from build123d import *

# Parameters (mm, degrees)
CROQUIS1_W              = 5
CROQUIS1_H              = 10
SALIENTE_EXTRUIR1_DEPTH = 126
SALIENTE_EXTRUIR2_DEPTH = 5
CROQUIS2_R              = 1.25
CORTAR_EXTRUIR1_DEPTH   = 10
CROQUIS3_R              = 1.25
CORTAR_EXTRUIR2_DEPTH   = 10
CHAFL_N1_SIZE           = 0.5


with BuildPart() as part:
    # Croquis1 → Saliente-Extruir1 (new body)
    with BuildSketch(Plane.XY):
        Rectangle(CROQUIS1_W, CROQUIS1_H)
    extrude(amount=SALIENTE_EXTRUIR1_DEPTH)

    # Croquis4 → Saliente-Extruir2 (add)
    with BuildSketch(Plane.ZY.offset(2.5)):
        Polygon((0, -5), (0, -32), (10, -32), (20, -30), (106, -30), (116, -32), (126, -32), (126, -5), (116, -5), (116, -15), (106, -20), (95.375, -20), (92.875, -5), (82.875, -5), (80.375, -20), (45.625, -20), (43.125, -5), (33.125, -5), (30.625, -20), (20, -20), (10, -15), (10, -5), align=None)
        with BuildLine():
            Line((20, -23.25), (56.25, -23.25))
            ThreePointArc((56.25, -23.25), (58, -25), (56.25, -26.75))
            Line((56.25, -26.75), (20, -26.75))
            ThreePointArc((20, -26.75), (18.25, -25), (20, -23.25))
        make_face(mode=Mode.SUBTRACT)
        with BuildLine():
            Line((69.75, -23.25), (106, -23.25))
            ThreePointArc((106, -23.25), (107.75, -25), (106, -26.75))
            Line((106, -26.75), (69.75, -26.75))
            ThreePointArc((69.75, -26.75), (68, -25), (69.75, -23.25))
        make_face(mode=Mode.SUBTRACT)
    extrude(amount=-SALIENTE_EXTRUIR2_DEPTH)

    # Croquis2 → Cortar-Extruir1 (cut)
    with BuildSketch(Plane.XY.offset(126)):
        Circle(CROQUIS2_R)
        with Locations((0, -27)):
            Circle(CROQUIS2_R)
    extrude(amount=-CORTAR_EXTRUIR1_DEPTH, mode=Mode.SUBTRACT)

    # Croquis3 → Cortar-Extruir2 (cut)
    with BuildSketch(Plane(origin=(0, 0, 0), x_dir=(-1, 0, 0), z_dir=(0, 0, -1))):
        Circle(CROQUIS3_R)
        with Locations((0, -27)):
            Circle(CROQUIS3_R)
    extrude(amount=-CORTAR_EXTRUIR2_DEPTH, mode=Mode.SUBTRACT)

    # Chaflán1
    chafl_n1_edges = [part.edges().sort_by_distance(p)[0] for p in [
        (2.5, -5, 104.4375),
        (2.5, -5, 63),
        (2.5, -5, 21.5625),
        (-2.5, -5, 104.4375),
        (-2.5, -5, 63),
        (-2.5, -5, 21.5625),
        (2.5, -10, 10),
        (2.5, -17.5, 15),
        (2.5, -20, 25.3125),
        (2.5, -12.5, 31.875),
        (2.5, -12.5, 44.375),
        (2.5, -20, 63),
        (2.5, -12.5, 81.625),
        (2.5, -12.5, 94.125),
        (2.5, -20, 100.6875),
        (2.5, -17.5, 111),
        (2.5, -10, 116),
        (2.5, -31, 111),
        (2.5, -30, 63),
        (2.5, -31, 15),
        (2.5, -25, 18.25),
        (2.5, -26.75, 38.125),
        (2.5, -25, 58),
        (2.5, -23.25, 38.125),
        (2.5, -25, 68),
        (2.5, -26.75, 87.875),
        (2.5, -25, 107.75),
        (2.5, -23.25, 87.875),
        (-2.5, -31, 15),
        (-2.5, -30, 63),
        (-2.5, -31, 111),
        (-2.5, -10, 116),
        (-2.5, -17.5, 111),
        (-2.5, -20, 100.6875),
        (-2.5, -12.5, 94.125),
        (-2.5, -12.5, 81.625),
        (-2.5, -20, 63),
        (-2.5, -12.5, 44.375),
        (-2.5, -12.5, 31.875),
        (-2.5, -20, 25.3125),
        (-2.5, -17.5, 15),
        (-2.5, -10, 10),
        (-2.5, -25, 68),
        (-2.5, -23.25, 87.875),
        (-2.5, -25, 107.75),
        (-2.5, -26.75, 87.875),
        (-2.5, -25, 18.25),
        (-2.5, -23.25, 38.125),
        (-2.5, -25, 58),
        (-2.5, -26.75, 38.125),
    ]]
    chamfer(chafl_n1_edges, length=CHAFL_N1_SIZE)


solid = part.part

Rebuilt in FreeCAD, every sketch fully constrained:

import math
import FreeCAD as App
import Part
import Sketcher
Q = App.Units.Quantity


def edges_at(feature, points):
    """Names of the edges that pass closest to the given points."""
    edges = feature.Shape.Edges
    near = lambda p: min(range(len(edges)), key=lambda i: edges[i].distToShape(Part.Vertex(*p))[0])
    return sorted({f"Edge{near(p) + 1}" for p in points})


def add_polygon(sketch, points):
    """Adds a closed chain of lines whose ends are joined by coincident constraints."""
    first, n = sketch.GeometryCount, len(points)
    for a, b in zip(points, points[1:] + points[:1]):
        sketch.addGeometry(Part.LineSegment(App.Vector(*a, 0), App.Vector(*b, 0)), False)
    for i in range(n):
        sketch.addConstraint(Sketcher.Constraint("Coincident", first + i, 2, first + (i + 1) % n, 1))

doc = App.newDocument("Part")
body = doc.addObject("PartDesign::Body", "Body")

# Sketch on XY plane
sketch1 = doc.addObject("Sketcher::SketchObject", "Sketch")
body.addObject(sketch1)
sketch1.AttachmentSupport = (doc.XY_Plane, [""])
sketch1.MapMode = "FlatFace"
add_polygon(sketch1, [(-2.5, 5), (-2.5, -5), (2.5, -5), (2.5, 5)])  # lines 0-3
sketch1.addConstraint(Sketcher.Constraint("Vertical", 0))
sketch1.addConstraint(Sketcher.Constraint("Horizontal", 1))
sketch1.addConstraint(Sketcher.Constraint("Vertical", 2))
sketch1.addConstraint(Sketcher.Constraint("Horizontal", 3))
sketch1.addConstraint(Sketcher.Constraint("Symmetric", 0, 2, 2, 2, -1, 1))
sketch1.addConstraint(Sketcher.Constraint("DistanceX", 1, 1, 1, 2, Q("5 mm")))
sketch1.addConstraint(Sketcher.Constraint("DistanceY", 0, 2, 0, 1, Q("10 mm")))
pad1 = doc.addObject("PartDesign::Pad", "Pad")
body.addObject(pad1)
pad1.Profile = sketch1
pad1.Length = 126

# Sketch on YZ plane
sketch2 = doc.addObject("Sketcher::SketchObject", "Sketch001")
body.addObject(sketch2)
sketch2.AttachmentSupport = (doc.YZ_Plane, [""])
sketch2.MapMode = "FlatFace"
sketch2.AttachmentOffset = App.Placement(App.Vector(0, 0, -2.5), App.Rotation())
add_polygon(sketch2, [(-5, 0), (-32, 0), (-32, 10), (-30, 20), (-30, 106), (-32, 116), (-32, 126), (-5, 126), (-5, 116), (-15, 116), (-20, 106), (-20, 95.375), (-5, 92.875), (-5, 82.875), (-20, 80.375), (-20, 45.625), (-5, 43.125), (-5, 33.125), (-20, 30.625), (-20, 20), (-15, 10), (-5, 10)])  # lines 0-21
sketch2.addGeometry(Part.ArcOfCircle(Part.Circle(App.Vector(-25, 20, 0), App.Vector(0, 0, 1), 1.75), math.radians(180), math.radians(360)), False)  # 22
sketch2.addGeometry(Part.LineSegment(App.Vector(-23.25, 20, 0), App.Vector(-23.25, 56.25, 0)), False)  # 23
sketch2.addGeometry(Part.ArcOfCircle(Part.Circle(App.Vector(-25, 56.25, 0), App.Vector(0, 0, 1), 1.75), math.radians(0), math.radians(180)), False)  # 24
sketch2.addGeometry(Part.LineSegment(App.Vector(-26.75, 56.25, 0), App.Vector(-26.75, 20, 0)), False)  # 25
sketch2.addGeometry(Part.ArcOfCircle(Part.Circle(App.Vector(-25, 69.75, 0), App.Vector(0, 0, 1), 1.75), math.radians(180), math.radians(360)), False)  # 26
sketch2.addGeometry(Part.LineSegment(App.Vector(-23.25, 69.75, 0), App.Vector(-23.25, 106, 0)), False)  # 27
sketch2.addGeometry(Part.ArcOfCircle(Part.Circle(App.Vector(-25, 106, 0), App.Vector(0, 0, 1), 1.75), math.radians(0), math.radians(180)), False)  # 28
sketch2.addGeometry(Part.LineSegment(App.Vector(-26.75, 106, 0), App.Vector(-26.75, 69.75, 0)), False)  # 29
sketch2.addConstraint(Sketcher.Constraint("Tangent", 22, 2, 23, 1))
sketch2.addConstraint(Sketcher.Constraint("Tangent", 23, 2, 24, 1))
sketch2.addConstraint(Sketcher.Constraint("Tangent", 24, 2, 25, 1))
sketch2.addConstraint(Sketcher.Constraint("Tangent", 25, 2, 22, 1))
sketch2.addConstraint(Sketcher.Constraint("Tangent", 26, 2, 27, 1))
sketch2.addConstraint(Sketcher.Constraint("Tangent", 27, 2, 28, 1))
sketch2.addConstraint(Sketcher.Constraint("Tangent", 28, 2, 29, 1))
sketch2.addConstraint(Sketcher.Constraint("Tangent", 29, 2, 26, 1))
sketch2.addConstraint(Sketcher.Constraint("Horizontal", 0))
sketch2.addConstraint(Sketcher.Constraint("Vertical", 1))
sketch2.addConstraint(Sketcher.Constraint("Vertical", 3))
sketch2.addConstraint(Sketcher.Constraint("Vertical", 5))
sketch2.addConstraint(Sketcher.Constraint("Horizontal", 6))
sketch2.addConstraint(Sketcher.Constraint("Vertical", 7))
sketch2.addConstraint(Sketcher.Constraint("Horizontal", 8))
sketch2.addConstraint(Sketcher.Constraint("Vertical", 10))
sketch2.addConstraint(Sketcher.Constraint("Vertical", 12))
sketch2.addConstraint(Sketcher.Constraint("Vertical", 14))
sketch2.addConstraint(Sketcher.Constraint("Vertical", 16))
sketch2.addConstraint(Sketcher.Constraint("Vertical", 18))
sketch2.addConstraint(Sketcher.Constraint("Horizontal", 20))
sketch2.addConstraint(Sketcher.Constraint("Vertical", 21))
sketch2.addConstraint(Sketcher.Constraint("Vertical", 23))
sketch2.addConstraint(Sketcher.Constraint("Vertical", 25))
sketch2.addConstraint(Sketcher.Constraint("Vertical", 27))
sketch2.addConstraint(Sketcher.Constraint("Vertical", 29))
sketch2.addConstraint(Sketcher.Constraint("Equal", 24, 26))
sketch2.addConstraint(Sketcher.Constraint("PointOnObject", 0, 2, -1))
sketch2.addConstraint(Sketcher.Constraint("Parallel", 11, 15))
sketch2.addConstraint(Sketcher.Constraint("Parallel", 13, 17))
sketch2.addConstraint(Sketcher.Constraint("Horizontal", 22, 3, 2, 2))
sketch2.addConstraint(Sketcher.Constraint("Horizontal", 28, 3, 3, 2))
sketch2.addConstraint(Sketcher.Constraint("Horizontal", 4, 2, 7, 2))
sketch2.addConstraint(Sketcher.Constraint("Horizontal", 3, 2, 9, 2))
sketch2.addConstraint(Sketcher.Constraint("Horizontal", 2, 2, 18, 2))
sketch2.addConstraint(Sketcher.Constraint("Horizontal", 1, 2, 19, 2))
sketch2.addConstraint(Sketcher.Constraint("Vertical", 24, 3, 26, 3))
sketch2.addConstraint(Sketcher.Constraint("Vertical", 1, 2, 4, 2))
sketch2.addConstraint(Sketcher.Constraint("Vertical", 7, 2, 11, 2))
sketch2.addConstraint(Sketcher.Constraint("Vertical", 10, 2, 13, 2))
sketch2.addConstraint(Sketcher.Constraint("Vertical", 12, 2, 15, 2))
sketch2.addConstraint(Sketcher.Constraint("Vertical", 14, 2, 17, 2))
sketch2.addConstraint(Sketcher.Constraint("Vertical", 8, 2, 19, 2))
sketch2.addConstraint(Sketcher.Constraint("Vertical", 16, 2, 20, 2))
sketch2.addConstraint(Sketcher.Constraint("Equal", 20, 1))
sketch2.addConstraint(Sketcher.Constraint("Equal", 1, 5))
sketch2.addConstraint(Sketcher.Constraint("Equal", 7, 12))
sketch2.addConstraint(Sketcher.Constraint("Equal", 12, 16))
sketch2.addConstraint(Sketcher.Constraint("Equal", 10, 18))
sketch2.addConstraint(Sketcher.Constraint("Equal", 25, 27))
sketch2.addConstraint(Sketcher.Constraint("Equal", 2, 4))
sketch2.addConstraint(Sketcher.Constraint("Equal", 11, 13))
sketch2.addConstraint(Sketcher.Constraint("DistanceX", 0, 2, 0, 1, Q("27 mm")))
sketch2.addConstraint(Sketcher.Constraint("DistanceX", 8, 2, 8, 1, Q("10 mm")))
sketch2.addConstraint(Sketcher.Constraint("DistanceY", 3, 1, 3, 2, Q("86 mm")))
sketch2.addConstraint(Sketcher.Constraint("Radius", 22, Q("1.75 mm")))
sketch2.addConstraint(Sketcher.Constraint("DistanceX", 22, 3, -1, 1, Q("25 mm")))
sketch2.addConstraint(Sketcher.Constraint("DistanceY", -1, 1, 22, 3, Q("20 mm")))
sketch2.addConstraint(Sketcher.Constraint("DistanceX", 0, 2, -1, 1, Q("32 mm")))
sketch2.addConstraint(Sketcher.Constraint("DistanceX", 2, 2, -1, 1, Q("30 mm")))
sketch2.addConstraint(Sketcher.Constraint("DistanceX", 9, 2, -1, 1, Q("20 mm")))
sketch2.addConstraint(Sketcher.Constraint("DistanceY", 13, 2, 10, 2, Q("15 mm")))
sketch2.addConstraint(Sketcher.Constraint("DistanceY", 14, 2, 14, 1, Q("34.75 mm")))
sketch2.addConstraint(Sketcher.Constraint("DistanceY", 23, 1, 23, 2, Q("36.25 mm")))
pad2 = doc.addObject("PartDesign::Pad", "Pad001")
body.addObject(pad2)
pad2.Profile = sketch2
pad2.Length = 5

# Sketch on XY plane
sketch3 = doc.addObject("Sketcher::SketchObject", "Sketch002")
body.addObject(sketch3)
sketch3.AttachmentSupport = (doc.XY_Plane, [""])
sketch3.MapMode = "FlatFace"
sketch3.AttachmentOffset = App.Placement(App.Vector(0, 0, 126), App.Rotation())
sketch3.addGeometry(Part.Circle(App.Vector(0, 0, 0), App.Vector(0, 0, 1), 1.25), False)
sketch3.addGeometry(Part.Circle(App.Vector(0, -27, 0), App.Vector(0, 0, 1), 1.25), False)
sketch3.addConstraint(Sketcher.Constraint("Coincident", 0, 3, -1, 1))
sketch3.addConstraint(Sketcher.Constraint("Equal", 0, 1))
sketch3.addConstraint(Sketcher.Constraint("PointOnObject", 1, 3, -2))
sketch3.addConstraint(Sketcher.Constraint("Diameter", 0, Q("2.5 mm")))
sketch3.addConstraint(Sketcher.Constraint("DistanceY", 1, 3, -1, 1, Q("27 mm")))
pocket1 = doc.addObject("PartDesign::Pocket", "Pocket")
body.addObject(pocket1)
pocket1.Profile = sketch3
pocket1.Length = 10

# Sketch on XY plane
sketch4 = doc.addObject("Sketcher::SketchObject", "Sketch003")
body.addObject(sketch4)
sketch4.AttachmentSupport = (doc.XY_Plane, [""])
sketch4.MapMode = "FlatFace"
sketch4.addGeometry(Part.Circle(App.Vector(0, 0, 0), App.Vector(0, 0, 1), 1.25), False)
sketch4.addGeometry(Part.Circle(App.Vector(0, -27, 0), App.Vector(0, 0, 1), 1.25), False)
sketch4.addConstraint(Sketcher.Constraint("Coincident", 0, 3, -1, 1))
sketch4.addConstraint(Sketcher.Constraint("Equal", 0, 1))
sketch4.addConstraint(Sketcher.Constraint("PointOnObject", 1, 3, -2))
sketch4.addConstraint(Sketcher.Constraint("Diameter", 0, Q("2.5 mm")))
sketch4.addConstraint(Sketcher.Constraint("DistanceY", 1, 3, -1, 1, Q("27 mm")))
pocket2 = doc.addObject("PartDesign::Pocket", "Pocket001")
body.addObject(pocket2)
pocket2.Profile = sketch4
pocket2.Length = 10
pocket2.Reversed = True
doc.recompute()

chamfer = doc.addObject("PartDesign::Chamfer", "Chamfer")
body.addObject(chamfer)
chamfer.Base = (pocket2, edges_at(pocket2, [
    (2.5, -5, 104.438),
    (2.5, -5, 63),
    (2.5, -5, 21.562),
    (-2.5, -5, 104.438),
    (-2.5, -5, 63),
    (-2.5, -5, 21.562),
    (2.5, -10, 10),
    (2.5, -17.5, 15),
    (2.5, -20, 25.312),
    (2.5, -12.5, 31.875),
    (2.5, -12.5, 44.375),
    (2.5, -20, 63),
    (2.5, -12.5, 81.625),
    (2.5, -12.5, 94.125),
    (2.5, -20, 100.688),
    (2.5, -17.5, 111),
    (2.5, -10, 116),
    (2.5, -31, 111),
    (2.5, -30, 63),
    (2.5, -31, 15),
    (2.5, -25, 18.25),
    (2.5, -26.75, 38.125),
    (2.5, -25, 58),
    (2.5, -23.25, 38.125),
    (2.5, -25, 68),
    (2.5, -26.75, 87.875),
    (2.5, -25, 107.75),
    (2.5, -23.25, 87.875),
    (-2.5, -31, 15),
    (-2.5, -30, 63),
    (-2.5, -31, 111),
    (-2.5, -10, 116),
    (-2.5, -17.5, 111),
    (-2.5, -20, 100.688),
    (-2.5, -12.5, 94.125),
    (-2.5, -12.5, 81.625),
    (-2.5, -20, 63),
    (-2.5, -12.5, 44.375),
    (-2.5, -12.5, 31.875),
    (-2.5, -20, 25.312),
    (-2.5, -17.5, 15),
    (-2.5, -10, 10),
    (-2.5, -25, 68),
    (-2.5, -23.25, 87.875),
    (-2.5, -25, 107.75),
    (-2.5, -26.75, 87.875),
    (-2.5, -25, 18.25),
    (-2.5, -23.25, 38.125),
    (-2.5, -25, 58),
    (-2.5, -26.75, 38.125),
]))
chamfer.Size = 0.5

doc.recompute()
